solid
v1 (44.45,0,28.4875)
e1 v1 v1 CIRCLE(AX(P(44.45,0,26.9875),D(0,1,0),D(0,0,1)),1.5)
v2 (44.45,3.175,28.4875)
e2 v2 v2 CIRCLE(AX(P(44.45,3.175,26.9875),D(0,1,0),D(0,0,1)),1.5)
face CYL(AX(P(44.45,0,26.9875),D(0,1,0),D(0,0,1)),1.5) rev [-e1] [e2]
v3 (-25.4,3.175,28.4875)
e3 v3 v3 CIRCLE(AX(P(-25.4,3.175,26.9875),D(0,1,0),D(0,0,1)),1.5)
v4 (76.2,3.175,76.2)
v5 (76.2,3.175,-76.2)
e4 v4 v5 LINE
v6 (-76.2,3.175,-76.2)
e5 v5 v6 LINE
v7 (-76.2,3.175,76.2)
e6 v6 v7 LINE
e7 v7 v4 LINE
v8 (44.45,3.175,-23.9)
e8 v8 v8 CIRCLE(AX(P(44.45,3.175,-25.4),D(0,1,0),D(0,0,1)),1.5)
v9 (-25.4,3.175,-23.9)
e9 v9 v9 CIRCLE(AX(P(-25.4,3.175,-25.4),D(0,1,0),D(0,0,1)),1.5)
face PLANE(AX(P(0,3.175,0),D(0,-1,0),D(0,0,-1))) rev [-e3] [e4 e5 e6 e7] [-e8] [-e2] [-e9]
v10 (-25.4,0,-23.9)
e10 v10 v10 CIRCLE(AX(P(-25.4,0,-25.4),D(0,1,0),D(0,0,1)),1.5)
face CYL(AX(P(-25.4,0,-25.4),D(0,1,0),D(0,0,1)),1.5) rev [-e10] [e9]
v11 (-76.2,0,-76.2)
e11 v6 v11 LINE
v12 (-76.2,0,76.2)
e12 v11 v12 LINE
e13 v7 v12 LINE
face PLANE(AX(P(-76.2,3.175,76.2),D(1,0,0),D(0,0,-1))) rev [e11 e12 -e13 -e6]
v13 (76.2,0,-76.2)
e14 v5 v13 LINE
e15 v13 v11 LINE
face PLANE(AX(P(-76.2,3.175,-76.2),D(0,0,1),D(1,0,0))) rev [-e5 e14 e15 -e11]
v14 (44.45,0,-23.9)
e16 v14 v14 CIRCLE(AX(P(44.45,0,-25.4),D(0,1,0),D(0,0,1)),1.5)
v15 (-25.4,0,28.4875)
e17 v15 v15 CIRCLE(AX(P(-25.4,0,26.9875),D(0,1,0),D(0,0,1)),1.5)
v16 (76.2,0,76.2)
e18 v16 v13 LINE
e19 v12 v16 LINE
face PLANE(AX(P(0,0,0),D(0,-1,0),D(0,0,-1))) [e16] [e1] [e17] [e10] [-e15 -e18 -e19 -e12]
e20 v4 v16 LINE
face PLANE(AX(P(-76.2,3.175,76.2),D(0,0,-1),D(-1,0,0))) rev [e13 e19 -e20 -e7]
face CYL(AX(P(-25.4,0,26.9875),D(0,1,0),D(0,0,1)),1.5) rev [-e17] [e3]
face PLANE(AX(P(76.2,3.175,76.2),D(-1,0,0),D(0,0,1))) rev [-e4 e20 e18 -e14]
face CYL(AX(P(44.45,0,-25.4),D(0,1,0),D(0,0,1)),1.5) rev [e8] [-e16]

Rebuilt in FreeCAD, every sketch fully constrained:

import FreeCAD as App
import Part
import Sketcher
Q = App.Units.Quantity

doc = App.newDocument("Part")
body = doc.addObject("PartDesign::Body", "Body")

sketch1 = doc.addObject("Sketcher::SketchObject", "Sketch")
body.addObject(sketch1)
sketch1.AttachmentSupport = (doc.XZ_Plane, [""])
sketch1.MapMode = "FlatFace"
sketch1.addGeometry([
    Part.LineSegment(App.Vector(-76, -76, 0), App.Vector(-76, 76, 0)),
    Part.LineSegment(App.Vector(-76, 76, 0), App.Vector(76, 76, 0)),
    Part.LineSegment(App.Vector(76, 76, 0), App.Vector(76, -76, 0)),
    Part.LineSegment(App.Vector(76, -76, 0), App.Vector(-76, -76, 0)),
], False)
sketch1.addConstraint([
    Sketcher.Constraint("Coincident", 0, 2, 1, 1),
    Sketcher.Constraint("Coincident", 1, 2, 2, 1),
    Sketcher.Constraint("Coincident", 2, 2, 3, 1),
    Sketcher.Constraint("Coincident", 3, 2, 0, 1),
    Sketcher.Constraint("Vertical", 0),
    Sketcher.Constraint("Horizontal", 1),
    Sketcher.Constraint("Vertical", 2),
    Sketcher.Constraint("Horizontal", 3),
    Sketcher.Constraint("Symmetric", 0, 2, 2, 2, -1, 1),
    Sketcher.Constraint("Equal", 3, 0),
    Sketcher.Constraint("DistanceX", 1, 1, 1, 2, Q("6 in")),
])
pad1 = doc.addObject("PartDesign::Pad", "Pad")
body.addObject(pad1)
pad1.Profile = sketch1
pad1.Length = Q("0.125 in")
pad1.Reversed = True

sketch2 = doc.addObject("Sketcher::SketchObject", "Sketch001")
body.addObject(sketch2)
sketch2.AttachmentSupport = (doc.XZ_Plane, [""])
sketch2.MapMode = "FlatFace"
sketch2.AttachmentOffset = App.Placement(App.Vector(0, 0, -0.125 * 25.4), App.Rotation())
sketch2.addGeometry([
    Part.Circle(App.Vector(-25.4, -25.4, 0), App.Vector(0, 0, 1), 1.5),
    Part.Circle(App.Vector(-25.4, 27, 0), App.Vector(0, 0, 1), 1.5),
    Part.Circle(App.Vector(44.5, -25.4, 0), App.Vector(0, 0, 1), 1.5),
    Part.Circle(App.Vector(44.5, 27, 0), App.Vector(0, 0, 1), 1.5),
], False)
sketch2.addConstraint([
    Sketcher.Constraint("Equal", 0, 1),
    Sketcher.Constraint("Equal", 1, 2),
    Sketcher.Constraint("Equal", 2, 3),
    Sketcher.Constraint("Horizontal", 0, 3, 2, 3),
    Sketcher.Constraint("Horizontal", 1, 3, 3, 3),
    Sketcher.Constraint("Vertical", 0, 3, 1, 3),
    Sketcher.Constraint("Vertical", 2, 3, 3, 3),
    Sketcher.Constraint("DistanceX", 0, 3, -1, 1, Q("1 in")),
    Sketcher.Constraint("DistanceY", 0, 3, -1, 1, Q("1 in")),
    Sketcher.Constraint("Diameter", 0, 3.0),
    Sketcher.Constraint("DistanceX", -1, 1, 2, 3, Q("1.75 in")),
    Sketcher.Constraint("DistanceY", -1, 1, 1, 3, Q("1.0625 in")),
])
pocket1 = doc.addObject("PartDesign::Pocket", "Pocket")
body.addObject(pocket1)
pocket1.Profile = sketch2
pocket1.Type = "ThroughAll"
pocket1.Reversed = True

doc.recompute()
